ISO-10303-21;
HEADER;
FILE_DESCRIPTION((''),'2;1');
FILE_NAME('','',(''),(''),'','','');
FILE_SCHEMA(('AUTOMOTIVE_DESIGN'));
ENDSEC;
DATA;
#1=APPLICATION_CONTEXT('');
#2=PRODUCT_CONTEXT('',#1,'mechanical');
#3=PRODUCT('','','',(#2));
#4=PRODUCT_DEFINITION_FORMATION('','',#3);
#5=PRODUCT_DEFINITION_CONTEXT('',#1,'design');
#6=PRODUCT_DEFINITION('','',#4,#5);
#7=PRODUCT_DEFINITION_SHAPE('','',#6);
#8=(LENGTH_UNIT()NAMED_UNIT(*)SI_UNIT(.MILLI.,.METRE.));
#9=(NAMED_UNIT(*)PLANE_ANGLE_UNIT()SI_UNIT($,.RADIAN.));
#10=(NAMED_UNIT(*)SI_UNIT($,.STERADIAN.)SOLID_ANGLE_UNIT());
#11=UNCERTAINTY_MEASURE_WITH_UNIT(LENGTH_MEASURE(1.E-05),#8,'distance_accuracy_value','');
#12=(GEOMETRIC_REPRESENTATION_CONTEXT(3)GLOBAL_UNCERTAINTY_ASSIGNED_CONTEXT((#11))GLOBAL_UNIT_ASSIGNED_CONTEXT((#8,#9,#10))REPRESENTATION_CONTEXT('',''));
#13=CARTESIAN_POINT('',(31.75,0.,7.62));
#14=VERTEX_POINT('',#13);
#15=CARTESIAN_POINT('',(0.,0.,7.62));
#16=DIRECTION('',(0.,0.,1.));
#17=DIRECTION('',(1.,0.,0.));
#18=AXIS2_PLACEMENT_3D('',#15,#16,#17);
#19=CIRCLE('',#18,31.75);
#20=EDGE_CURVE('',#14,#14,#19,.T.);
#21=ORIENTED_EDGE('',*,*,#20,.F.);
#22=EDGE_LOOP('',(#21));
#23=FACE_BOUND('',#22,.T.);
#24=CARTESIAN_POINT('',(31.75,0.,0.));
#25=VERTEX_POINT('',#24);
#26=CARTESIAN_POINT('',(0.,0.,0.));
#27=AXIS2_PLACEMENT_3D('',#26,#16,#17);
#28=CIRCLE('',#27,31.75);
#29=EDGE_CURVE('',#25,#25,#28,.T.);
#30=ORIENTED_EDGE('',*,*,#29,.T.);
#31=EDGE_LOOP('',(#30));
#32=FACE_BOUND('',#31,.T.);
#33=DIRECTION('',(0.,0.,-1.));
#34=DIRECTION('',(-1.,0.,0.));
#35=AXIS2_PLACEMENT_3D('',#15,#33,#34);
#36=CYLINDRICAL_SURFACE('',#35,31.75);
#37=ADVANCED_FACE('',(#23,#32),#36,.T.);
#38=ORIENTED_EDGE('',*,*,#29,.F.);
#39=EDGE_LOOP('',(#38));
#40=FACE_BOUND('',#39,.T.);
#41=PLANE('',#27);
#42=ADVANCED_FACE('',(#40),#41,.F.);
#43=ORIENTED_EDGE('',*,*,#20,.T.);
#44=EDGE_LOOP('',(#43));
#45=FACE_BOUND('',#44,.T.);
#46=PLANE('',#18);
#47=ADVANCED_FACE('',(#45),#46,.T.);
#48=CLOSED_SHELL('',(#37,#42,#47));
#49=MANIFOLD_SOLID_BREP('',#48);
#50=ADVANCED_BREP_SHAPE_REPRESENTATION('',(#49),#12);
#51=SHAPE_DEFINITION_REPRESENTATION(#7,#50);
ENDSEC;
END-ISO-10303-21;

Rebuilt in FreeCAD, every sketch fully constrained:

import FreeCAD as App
import Part
import Sketcher

V = App.Vector
Q = App.Units.Quantity

doc = App.newDocument("Part")
body = doc.addObject("PartDesign::Body", "Body")

sketch1 = doc.addObject("Sketcher::SketchObject", "Sketch")
body.addObject(sketch1)
sketch1.AttachmentSupport = (doc.XY_Plane, [""])
sketch1.MapMode = "FlatFace"
sketch1.addGeometry(Part.Circle(V(0, 0, 0), V(0, 0, 1), 32), False)
sketch1.addConstraint([
    Sketcher.Constraint("Coincident", 0, 3, -1, 1),
    Sketcher.Constraint("Diameter", 0, Q("2.5 in")),
])
pad1 = doc.addObject("PartDesign::Pad", "Pad")
body.addObject(pad1)
pad1.Profile = sketch1
pad1.Length = Q("0.3 in")

doc.recompute()
